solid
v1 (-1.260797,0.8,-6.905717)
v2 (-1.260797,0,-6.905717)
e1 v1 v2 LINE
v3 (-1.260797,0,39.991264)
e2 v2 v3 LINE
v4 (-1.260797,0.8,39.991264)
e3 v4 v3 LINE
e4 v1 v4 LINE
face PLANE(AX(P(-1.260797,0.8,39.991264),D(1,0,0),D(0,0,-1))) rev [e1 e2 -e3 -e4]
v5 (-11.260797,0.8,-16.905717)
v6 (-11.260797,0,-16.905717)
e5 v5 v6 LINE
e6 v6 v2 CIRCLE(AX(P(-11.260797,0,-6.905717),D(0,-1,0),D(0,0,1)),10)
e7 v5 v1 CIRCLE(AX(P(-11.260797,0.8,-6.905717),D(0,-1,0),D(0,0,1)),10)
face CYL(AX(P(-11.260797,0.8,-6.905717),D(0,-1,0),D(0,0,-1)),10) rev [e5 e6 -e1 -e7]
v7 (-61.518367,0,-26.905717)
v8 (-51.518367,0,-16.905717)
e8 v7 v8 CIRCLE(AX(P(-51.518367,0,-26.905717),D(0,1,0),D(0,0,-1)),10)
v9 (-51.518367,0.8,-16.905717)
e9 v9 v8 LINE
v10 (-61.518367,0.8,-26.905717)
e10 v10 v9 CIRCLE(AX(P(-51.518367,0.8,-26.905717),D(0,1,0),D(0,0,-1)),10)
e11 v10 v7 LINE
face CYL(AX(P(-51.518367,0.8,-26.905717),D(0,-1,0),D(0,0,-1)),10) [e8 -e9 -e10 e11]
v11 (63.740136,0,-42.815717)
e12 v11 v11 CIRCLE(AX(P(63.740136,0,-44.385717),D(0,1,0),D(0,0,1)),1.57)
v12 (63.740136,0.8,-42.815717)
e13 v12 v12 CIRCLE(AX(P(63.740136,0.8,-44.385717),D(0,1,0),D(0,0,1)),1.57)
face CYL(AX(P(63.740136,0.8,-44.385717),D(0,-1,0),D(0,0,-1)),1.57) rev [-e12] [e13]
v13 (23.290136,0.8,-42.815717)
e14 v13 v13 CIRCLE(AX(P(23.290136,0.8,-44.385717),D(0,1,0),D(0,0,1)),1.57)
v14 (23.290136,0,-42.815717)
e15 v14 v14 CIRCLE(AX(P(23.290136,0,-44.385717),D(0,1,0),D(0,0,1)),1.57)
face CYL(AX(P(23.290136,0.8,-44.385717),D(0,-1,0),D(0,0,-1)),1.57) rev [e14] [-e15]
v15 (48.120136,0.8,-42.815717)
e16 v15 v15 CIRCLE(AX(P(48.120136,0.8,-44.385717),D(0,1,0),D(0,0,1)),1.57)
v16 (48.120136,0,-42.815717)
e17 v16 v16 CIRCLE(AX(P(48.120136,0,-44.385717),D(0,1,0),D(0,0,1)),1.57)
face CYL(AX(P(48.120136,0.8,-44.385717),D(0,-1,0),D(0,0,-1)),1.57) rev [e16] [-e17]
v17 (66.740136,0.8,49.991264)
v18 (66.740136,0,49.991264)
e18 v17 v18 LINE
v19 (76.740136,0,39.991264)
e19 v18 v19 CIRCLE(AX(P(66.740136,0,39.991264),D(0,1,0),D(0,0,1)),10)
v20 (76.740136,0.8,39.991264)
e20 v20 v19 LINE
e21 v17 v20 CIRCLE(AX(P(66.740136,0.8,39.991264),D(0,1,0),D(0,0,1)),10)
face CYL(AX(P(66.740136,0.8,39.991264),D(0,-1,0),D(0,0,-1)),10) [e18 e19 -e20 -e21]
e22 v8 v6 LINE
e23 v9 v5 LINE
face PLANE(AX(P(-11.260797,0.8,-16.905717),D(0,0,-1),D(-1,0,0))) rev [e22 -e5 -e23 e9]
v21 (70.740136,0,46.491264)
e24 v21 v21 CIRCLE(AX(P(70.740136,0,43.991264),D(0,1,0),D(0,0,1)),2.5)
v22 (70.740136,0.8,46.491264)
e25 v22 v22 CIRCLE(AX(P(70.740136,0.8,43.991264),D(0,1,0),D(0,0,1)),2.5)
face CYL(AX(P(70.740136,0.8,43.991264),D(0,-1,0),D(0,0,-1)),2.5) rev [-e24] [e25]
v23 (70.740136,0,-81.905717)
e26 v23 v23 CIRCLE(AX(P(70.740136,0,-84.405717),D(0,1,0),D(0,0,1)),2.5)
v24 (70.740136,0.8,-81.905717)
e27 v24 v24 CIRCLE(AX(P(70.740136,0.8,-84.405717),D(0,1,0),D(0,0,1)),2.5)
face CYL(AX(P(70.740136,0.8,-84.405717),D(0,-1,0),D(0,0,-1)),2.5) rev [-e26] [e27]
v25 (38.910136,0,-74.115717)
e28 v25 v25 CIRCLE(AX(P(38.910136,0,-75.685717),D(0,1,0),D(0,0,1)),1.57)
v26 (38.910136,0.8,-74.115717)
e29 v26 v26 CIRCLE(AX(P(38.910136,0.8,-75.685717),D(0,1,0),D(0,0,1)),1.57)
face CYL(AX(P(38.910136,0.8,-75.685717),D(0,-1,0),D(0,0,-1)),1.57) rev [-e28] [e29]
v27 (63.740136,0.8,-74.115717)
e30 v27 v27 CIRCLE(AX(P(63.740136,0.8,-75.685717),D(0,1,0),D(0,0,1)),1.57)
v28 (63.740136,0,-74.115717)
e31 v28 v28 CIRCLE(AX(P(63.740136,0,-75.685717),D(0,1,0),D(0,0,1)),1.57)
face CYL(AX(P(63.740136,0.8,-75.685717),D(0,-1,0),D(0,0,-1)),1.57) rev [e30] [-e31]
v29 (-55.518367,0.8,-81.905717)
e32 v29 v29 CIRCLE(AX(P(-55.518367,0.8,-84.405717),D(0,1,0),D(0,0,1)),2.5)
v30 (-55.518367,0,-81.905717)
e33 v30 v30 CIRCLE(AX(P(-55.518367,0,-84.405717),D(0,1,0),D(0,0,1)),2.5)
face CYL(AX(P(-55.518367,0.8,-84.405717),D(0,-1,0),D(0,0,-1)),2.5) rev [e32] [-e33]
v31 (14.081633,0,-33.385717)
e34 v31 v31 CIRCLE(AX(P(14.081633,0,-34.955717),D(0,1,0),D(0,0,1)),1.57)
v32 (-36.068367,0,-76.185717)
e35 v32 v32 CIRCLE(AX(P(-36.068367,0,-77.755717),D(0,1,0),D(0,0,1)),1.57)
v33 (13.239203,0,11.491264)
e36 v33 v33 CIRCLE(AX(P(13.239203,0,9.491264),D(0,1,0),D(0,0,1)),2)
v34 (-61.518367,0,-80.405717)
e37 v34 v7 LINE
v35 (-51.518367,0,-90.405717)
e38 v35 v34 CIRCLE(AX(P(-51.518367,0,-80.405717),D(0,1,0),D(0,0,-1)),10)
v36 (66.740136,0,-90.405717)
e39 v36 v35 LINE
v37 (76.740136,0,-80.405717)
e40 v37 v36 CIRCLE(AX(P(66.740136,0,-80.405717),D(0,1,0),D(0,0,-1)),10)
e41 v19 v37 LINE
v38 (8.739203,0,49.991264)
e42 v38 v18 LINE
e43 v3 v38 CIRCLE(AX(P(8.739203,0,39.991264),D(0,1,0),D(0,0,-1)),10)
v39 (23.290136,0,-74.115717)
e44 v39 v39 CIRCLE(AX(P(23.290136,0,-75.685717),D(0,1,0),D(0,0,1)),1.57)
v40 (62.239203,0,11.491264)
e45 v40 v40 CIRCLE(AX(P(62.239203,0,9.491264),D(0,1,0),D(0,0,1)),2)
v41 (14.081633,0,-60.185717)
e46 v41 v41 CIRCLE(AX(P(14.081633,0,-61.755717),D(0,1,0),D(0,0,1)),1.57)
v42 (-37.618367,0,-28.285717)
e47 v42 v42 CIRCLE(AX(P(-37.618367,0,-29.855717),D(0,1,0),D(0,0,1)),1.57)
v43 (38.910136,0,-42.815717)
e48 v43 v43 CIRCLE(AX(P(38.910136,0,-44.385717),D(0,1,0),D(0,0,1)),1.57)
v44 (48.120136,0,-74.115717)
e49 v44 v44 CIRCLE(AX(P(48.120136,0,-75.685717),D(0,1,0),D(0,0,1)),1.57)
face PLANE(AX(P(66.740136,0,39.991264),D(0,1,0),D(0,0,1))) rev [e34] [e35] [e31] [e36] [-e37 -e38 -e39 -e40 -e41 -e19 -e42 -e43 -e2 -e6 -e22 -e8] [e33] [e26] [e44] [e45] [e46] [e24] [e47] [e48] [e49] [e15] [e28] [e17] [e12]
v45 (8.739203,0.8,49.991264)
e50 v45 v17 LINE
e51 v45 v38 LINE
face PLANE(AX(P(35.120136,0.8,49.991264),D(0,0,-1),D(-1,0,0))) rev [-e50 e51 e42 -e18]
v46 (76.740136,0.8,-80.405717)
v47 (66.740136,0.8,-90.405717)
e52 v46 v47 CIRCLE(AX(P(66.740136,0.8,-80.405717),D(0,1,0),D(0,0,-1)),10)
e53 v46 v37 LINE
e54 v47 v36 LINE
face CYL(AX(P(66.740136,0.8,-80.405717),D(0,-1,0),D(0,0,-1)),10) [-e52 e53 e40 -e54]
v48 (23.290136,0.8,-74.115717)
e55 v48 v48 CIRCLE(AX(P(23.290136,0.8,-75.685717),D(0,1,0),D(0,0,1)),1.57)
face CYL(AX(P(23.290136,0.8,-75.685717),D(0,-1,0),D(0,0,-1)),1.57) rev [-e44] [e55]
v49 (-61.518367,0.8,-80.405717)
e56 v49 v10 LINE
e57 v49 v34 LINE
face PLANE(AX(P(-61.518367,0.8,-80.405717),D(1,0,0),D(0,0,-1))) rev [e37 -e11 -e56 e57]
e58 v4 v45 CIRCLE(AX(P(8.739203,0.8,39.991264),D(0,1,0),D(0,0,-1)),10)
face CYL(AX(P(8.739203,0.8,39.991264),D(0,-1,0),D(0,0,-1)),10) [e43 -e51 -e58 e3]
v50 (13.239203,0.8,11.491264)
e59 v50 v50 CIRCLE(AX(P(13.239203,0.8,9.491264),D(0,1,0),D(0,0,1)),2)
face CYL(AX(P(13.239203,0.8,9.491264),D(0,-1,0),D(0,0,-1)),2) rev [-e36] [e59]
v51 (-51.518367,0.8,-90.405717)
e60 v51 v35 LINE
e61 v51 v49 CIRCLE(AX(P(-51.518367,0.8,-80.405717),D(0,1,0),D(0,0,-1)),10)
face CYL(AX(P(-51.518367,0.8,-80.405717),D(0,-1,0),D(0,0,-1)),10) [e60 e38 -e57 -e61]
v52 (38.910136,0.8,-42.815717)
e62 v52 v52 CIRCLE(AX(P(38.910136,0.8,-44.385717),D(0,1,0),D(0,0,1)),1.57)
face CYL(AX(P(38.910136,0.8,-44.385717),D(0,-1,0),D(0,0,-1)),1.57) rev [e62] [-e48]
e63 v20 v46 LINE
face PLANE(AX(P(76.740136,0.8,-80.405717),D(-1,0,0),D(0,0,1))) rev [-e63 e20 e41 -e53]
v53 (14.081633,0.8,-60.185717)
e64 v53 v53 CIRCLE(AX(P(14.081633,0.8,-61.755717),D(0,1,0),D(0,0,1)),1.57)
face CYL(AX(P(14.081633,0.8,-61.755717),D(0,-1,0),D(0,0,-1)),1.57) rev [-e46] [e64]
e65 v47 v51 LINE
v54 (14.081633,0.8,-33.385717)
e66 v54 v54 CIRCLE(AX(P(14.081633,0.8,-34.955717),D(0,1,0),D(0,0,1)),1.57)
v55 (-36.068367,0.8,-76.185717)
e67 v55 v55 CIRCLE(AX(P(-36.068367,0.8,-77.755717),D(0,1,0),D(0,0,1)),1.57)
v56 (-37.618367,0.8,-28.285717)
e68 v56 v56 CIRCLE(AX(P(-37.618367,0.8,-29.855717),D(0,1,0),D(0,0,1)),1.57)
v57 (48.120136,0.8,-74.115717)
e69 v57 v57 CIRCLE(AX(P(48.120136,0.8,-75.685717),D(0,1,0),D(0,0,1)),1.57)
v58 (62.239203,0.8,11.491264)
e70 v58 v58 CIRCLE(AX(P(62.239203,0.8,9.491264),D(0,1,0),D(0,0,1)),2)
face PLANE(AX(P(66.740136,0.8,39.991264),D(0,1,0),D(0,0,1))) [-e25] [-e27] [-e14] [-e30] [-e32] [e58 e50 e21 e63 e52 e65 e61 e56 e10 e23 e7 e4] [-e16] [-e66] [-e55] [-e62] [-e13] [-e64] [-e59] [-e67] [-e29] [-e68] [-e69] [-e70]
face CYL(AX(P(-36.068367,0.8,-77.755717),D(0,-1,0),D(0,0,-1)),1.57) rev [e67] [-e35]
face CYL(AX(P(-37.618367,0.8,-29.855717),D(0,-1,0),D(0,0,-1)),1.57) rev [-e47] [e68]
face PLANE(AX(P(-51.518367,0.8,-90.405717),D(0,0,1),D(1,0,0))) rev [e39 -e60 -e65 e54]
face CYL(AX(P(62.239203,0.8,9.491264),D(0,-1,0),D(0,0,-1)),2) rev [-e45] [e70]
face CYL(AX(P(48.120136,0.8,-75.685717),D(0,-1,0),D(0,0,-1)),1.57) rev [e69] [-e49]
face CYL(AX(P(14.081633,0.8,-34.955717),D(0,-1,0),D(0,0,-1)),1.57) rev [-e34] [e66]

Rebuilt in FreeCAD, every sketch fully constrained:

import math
import FreeCAD as App
import Part
import Sketcher

V = App.Vector
Q = App.Units.Quantity

doc = App.newDocument("Part")
body = doc.addObject("PartDesign::Body", "Body")

# Sketch on XZ plane
sketch1 = doc.addObject("Sketcher::SketchObject", "Sketch")
body.addObject(sketch1)
sketch1.AttachmentSupport = (doc.XZ_Plane, [""])
sketch1.MapMode = "FlatFace"
sketch1.addGeometry(Part.LineSegment(V(66.7, -90.4, 0), V(-51.5, -90.4, 0)), False)
sketch1.addGeometry(Part.ArcOfCircle(Part.Circle(V(-51.5, -80.4, 0), V(0, 0, 1), 10), math.radians(-180), math.radians(-90)), False)
sketch1.addGeometry(Part.LineSegment(V(-61.5, -80.4, 0), V(-61.5, -26.9, 0)), False)
sketch1.addGeometry(Part.ArcOfCircle(Part.Circle(V(-51.5, -26.9, 0), V(0, 0, 1), 10), math.radians(90), math.radians(180)), False)
sketch1.addGeometry(Part.LineSegment(V(-51.5, -16.9, 0), V(-11.3, -16.9, 0)), False)
sketch1.addGeometry(Part.ArcOfCircle(Part.Circle(V(-11.3, -6.9, 0), V(0, 0, 1), 10), math.radians(-90), math.radians(0)), False)
sketch1.addGeometry(Part.LineSegment(V(-1.3, -6.9, 0), V(-1.3, 40, 0)), False)
sketch1.addGeometry(Part.ArcOfCircle(Part.Circle(V(8.7, 40, 0), V(0, 0, 1), 10), math.radians(90), math.radians(180)), False)
sketch1.addGeometry(Part.LineSegment(V(8.7, 50, 0), V(66.7, 50, 0)), False)
sketch1.addGeometry(Part.ArcOfCircle(Part.Circle(V(66.7, 40, 0), V(0, 0, 1), 10), math.radians(0), math.radians(90)), False)
sketch1.addGeometry(Part.LineSegment(V(76.7, 40, 0), V(76.7, -80.4, 0)), False)
sketch1.addGeometry(Part.ArcOfCircle(Part.Circle(V(66.7, -80.4, 0), V(0, 0, 1), 10), math.radians(-90), math.radians(0)), False)
sketch1.addGeometry(Part.Circle(V(70.7, 44, 0), V(0, 0, 1), 2.5), False)
sketch1.addGeometry(Part.Circle(V(62.2, 9.5, 0), V(0, 0, 1), 2), False)
sketch1.addGeometry(Part.Circle(V(13.2, 9.5, 0), V(0, 0, 1), 2), False)
sketch1.addGeometry(Part.Circle(V(63.7, -44.4, 0), V(0, 0, 1), 1.6), False)
sketch1.addGeometry(Part.Circle(V(48.1, -44.4, 0), V(0, 0, 1), 1.6), False)
sketch1.addGeometry(Part.Circle(V(14.1, -35, 0), V(0, 0, 1), 1.6), False)
sketch1.addGeometry(Part.Circle(V(38.9, -44.4, 0), V(0, 0, 1), 1.6), False)
sketch1.addGeometry(Part.Circle(V(23.3, -44.4, 0), V(0, 0, 1), 1.6), False)
sketch1.addGeometry(Part.Circle(V(63.7, -75.7, 0), V(0, 0, 1), 1.6), False)
sketch1.addGeometry(Part.Circle(V(70.7, -84.4, 0), V(0, 0, 1), 2.5), False)
sketch1.addGeometry(Part.Circle(V(48.1, -75.7, 0), V(0, 0, 1), 1.6), False)
sketch1.addGeometry(Part.Circle(V(14.1, -61.8, 0), V(0, 0, 1), 1.6), False)
sketch1.addGeometry(Part.Circle(V(38.9, -75.7, 0), V(0, 0, 1), 1.6), False)
sketch1.addGeometry(Part.Circle(V(23.3, -75.7, 0), V(0, 0, 1), 1.6), False)
sketch1.addGeometry(Part.Circle(V(-37.6, -29.9, 0), V(0, 0, 1), 1.6), False)
sketch1.addGeometry(Part.Circle(V(-36.1, -77.8, 0), V(0, 0, 1), 1.6), False)
sketch1.addGeometry(Part.Circle(V(-55.5, -84.4, 0), V(0, 0, 1), 2.5), False)
sketch1.addConstraint(Sketcher.Constraint("Tangent", 0, 2, 1, 2))
sketch1.addConstraint(Sketcher.Constraint("Tangent", 1, 1, 2, 1))
sketch1.addConstraint(Sketcher.Constraint("Tangent", 2, 2, 3, 2))
sketch1.addConstraint(Sketcher.Constraint("Tangent", 3, 1, 4, 1))
sketch1.addConstraint(Sketcher.Constraint("Tangent", 4, 2, 5, 1))
sketch1.addConstraint(Sketcher.Constraint("Tangent", 5, 2, 6, 1))
sketch1.addConstraint(Sketcher.Constraint("Tangent", 6, 2, 7, 2))
sketch1.addConstraint(Sketcher.Constraint("Tangent", 7, 1, 8, 1))
sketch1.addConstraint(Sketcher.Constraint("Tangent", 8, 2, 9, 2))
sketch1.addConstraint(Sketcher.Constraint("Tangent", 9, 1, 10, 1))
sketch1.addConstraint(Sketcher.Constraint("Tangent", 10, 2, 11, 2))
sketch1.addConstraint(Sketcher.Constraint("Tangent", 11, 1, 0, 1))
sketch1.addConstraint(Sketcher.Constraint("Horizontal", 0))
sketch1.addConstraint(Sketcher.Constraint("Vertical", 2))
sketch1.addConstraint(Sketcher.Constraint("Horizontal", 4))
sketch1.addConstraint(Sketcher.Constraint("Vertical", 6))
sketch1.addConstraint(Sketcher.Constraint("Horizontal", 8))
sketch1.addConstraint(Sketcher.Constraint("Vertical", 10))
sketch1.addConstraint(Sketcher.Constraint("Equal", 1, 3))
sketch1.addConstraint(Sketcher.Constraint("Equal", 3, 5))
sketch1.addConstraint(Sketcher.Constraint("Equal", 5, 7))
sketch1.addConstraint(Sketcher.Constraint("Equal", 7, 9))
sketch1.addConstraint(Sketcher.Constraint("Equal", 9, 11))
sketch1.addConstraint(Sketcher.Constraint("Equal", 13, 14))
sketch1.addConstraint(Sketcher.Constraint("Equal", 15, 16))
sketch1.addConstraint(Sketcher.Constraint("Equal", 16, 17))
sketch1.addConstraint(Sketcher.Constraint("Equal", 17, 18))
sketch1.addConstraint(Sketcher.Constraint("Equal", 18, 19))
sketch1.addConstraint(Sketcher.Constraint("Equal", 19, 20))
sketch1.addConstraint(Sketcher.Constraint("Equal", 12, 21))
sketch1.addConstraint(Sketcher.Constraint("Equal", 20, 22))
sketch1.addConstraint(Sketcher.Constraint("Equal", 22, 23))
sketch1.addConstraint(Sketcher.Constraint("Equal", 23, 24))
sketch1.addConstraint(Sketcher.Constraint("Equal", 24, 25))
sketch1.addConstraint(Sketcher.Constraint("Equal", 25, 26))
sketch1.addConstraint(Sketcher.Constraint("Equal", 26, 27))
sketch1.addConstraint(Sketcher.Constraint("Equal", 21, 28))
sketch1.addConstraint(Sketcher.Constraint("Horizontal", 13, 3, 14, 3))
sketch1.addConstraint(Sketcher.Constraint("Horizontal", 15, 3, 16, 3))
sketch1.addConstraint(Sketcher.Constraint("Horizontal", 16, 3, 18, 3))
sketch1.addConstraint(Sketcher.Constraint("Horizontal", 18, 3, 19, 3))
sketch1.addConstraint(Sketcher.Constraint("Horizontal", 20, 3, 22, 3))
sketch1.addConstraint(Sketcher.Constraint("Horizontal", 22, 3, 24, 3))
sketch1.addConstraint(Sketcher.Constraint("Horizontal", 24, 3, 25, 3))
sketch1.addConstraint(Sketcher.Constraint("Horizontal", 21, 3, 28, 3))
sketch1.addConstraint(Sketcher.Constraint("Vertical", 15, 3, 20, 3))
sketch1.addConstraint(Sketcher.Constraint("Vertical", 12, 3, 21, 3))
sketch1.addConstraint(Sketcher.Constraint("Vertical", 16, 3, 22, 3))
sketch1.addConstraint(Sketcher.Constraint("Vertical", 17, 3, 23, 3))
sketch1.addConstraint(Sketcher.Constraint("Vertical", 18, 3, 24, 3))
sketch1.addConstraint(Sketcher.Constraint("Vertical", 19, 3, 25, 3))
sketch1.addConstraint(Sketcher.Constraint("Diameter", 12, Q("5 mm")))
sketch1.addConstraint(Sketcher.Constraint("Diameter", 13, Q("4 mm")))
sketch1.addConstraint(Sketcher.Constraint("Radius", 1, Q("10 mm")))
sketch1.addConstraint(Sketcher.Constraint("Diameter", 15, Q("3.14 mm")))
sketch1.addConstraint(Sketcher.Constraint("DistanceY", 2, 1, 2, 2, Q("53.5 mm")))
sketch1.addConstraint(Sketcher.Constraint("DistanceX", 9, 3, 12, 3, Q("4 mm")))
sketch1.addConstraint(Sketcher.Constraint("DistanceY", 9, 3, 12, 3, Q("4 mm")))
sketch1.addConstraint(Sketcher.Constraint("DistanceX", 14, 3, 13, 3, Q("49 mm")))
sketch1.addConstraint(Sketcher.Constraint("DistanceX", 15, 3, 11, 3, Q("3 mm")))
sketch1.addConstraint(Sketcher.Constraint("DistanceY", 21, 3, 11, 3, Q("4 mm")))
sketch1.addConstraint(Sketcher.Constraint("DistanceY", 27, 3, 23, 3, Q("16 mm")))
sketch1.addConstraint(Sketcher.Constraint("DistanceX", 28, 3, 1, 3, Q("4 mm")))
sketch1.addConstraint(Sketcher.Constraint("DistanceY", 13, 3, 9, 3, Q("30.5 mm")))
sketch1.addConstraint(Sketcher.Constraint("DistanceX", 7, 3, 13, 3, Q("53.5 mm")))
sketch1.addConstraint(Sketcher.Constraint("DistanceY", 20, 3, 15, 3, Q("31.3 mm")))
sketch1.addConstraint(Sketcher.Constraint("DistanceY", 23, 3, 17, 3, Q("26.8 mm")))
sketch1.addConstraint(Sketcher.Constraint("DistanceX", 3, 3, 26, 3, Q("13.9 mm")))
sketch1.addConstraint(Sketcher.Constraint("DistanceX", 26, 3, 17, 3, Q("51.7 mm")))
sketch1.addConstraint(Sketcher.Constraint("DistanceY", 17, 3, 26, 3, Q("5.1 mm")))
sketch1.addConstraint(Sketcher.Constraint("DistanceY", 11, 3, 15, 3, Q("36.02 mm")))
sketch1.addConstraint(Sketcher.Constraint("DistanceX", 16, 3, 15, 3, Q("15.62 mm")))
sketch1.addConstraint(Sketcher.Constraint("DistanceY", 16, 3, 17, 3, Q("9.43 mm")))
sketch1.addConstraint(Sketcher.Constraint("DistanceX", 18, 3, 16, 3, Q("9.21 mm")))
sketch1.addConstraint(Sketcher.Constraint("DistanceX", 19, 3, 18, 3, Q("15.62 mm")))
sketch1.addConstraint(Sketcher.Constraint("DistanceX", 1, 3, 27, 3, Q("15.45 mm")))
sketch1.addConstraint(Sketcher.Constraint("DistanceX", 4, 1, 4, 2, Q("40.257569 mm")))
sketch1.addConstraint(Sketcher.Constraint("DistanceY", 6, 1, 6, 2, Q("46.896981 mm")))
sketch1.addConstraint(Sketcher.Constraint("DistanceX", 0, 2, 0, 1, Q("118.258503 mm")))
sketch1.addConstraint(Sketcher.Constraint("DistanceX", 1, 3, -1, 1, Q("51.518367 mm")))
sketch1.addConstraint(Sketcher.Constraint("DistanceY", 1, 3, -1, 1, Q("80.405717 mm")))
pad1 = doc.addObject("PartDesign::Pad", "Pad")
body.addObject(pad1)
pad1.Profile = sketch1
pad1.Length = 0.8
pad1.Reversed = True

doc.recompute()
